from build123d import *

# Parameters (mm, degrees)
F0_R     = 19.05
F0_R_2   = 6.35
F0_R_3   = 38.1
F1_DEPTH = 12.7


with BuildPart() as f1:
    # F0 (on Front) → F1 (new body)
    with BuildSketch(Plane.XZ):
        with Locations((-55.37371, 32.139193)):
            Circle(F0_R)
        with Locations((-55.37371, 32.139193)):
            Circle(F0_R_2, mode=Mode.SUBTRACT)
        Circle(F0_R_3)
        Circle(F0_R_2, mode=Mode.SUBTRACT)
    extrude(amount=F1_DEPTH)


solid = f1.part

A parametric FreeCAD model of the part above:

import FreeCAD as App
import Part
import Sketcher
Q = App.Units.Quantity

doc = App.newDocument("Part")
body = doc.addObject("PartDesign::Body", "Body")
body.AllowCompound = True

sketch1 = body.newObject("Sketcher::SketchObject", "Sketch")
sketch1.AttachmentSupport = (doc.getObject("XZ_Plane"), [""])
sketch1.MapMode = "FlatFace"
sketch1.addGeometry(Part.Circle(App.Vector(-55, 32, 0), App.Vector(0, 0, 1), 19), False)
sketch1.addGeometry(Part.Circle(App.Vector(-55, 32, 0), App.Vector(0, 0, 1), 6), False)
sketch1.addGeometry(Part.Circle(App.Vector(0, 0, 0), App.Vector(0, 0, 1), 38), False)
sketch1.addGeometry(Part.Circle(App.Vector(0, 0, 0), App.Vector(0, 0, 1), 6), False)
sketch1.addConstraint(Sketcher.Constraint("Coincident", 2, 3, -1, 1))
sketch1.addConstraint(Sketcher.Constraint("Coincident", 3, 3, -1, 1))
sketch1.addConstraint(Sketcher.Constraint("Coincident", 1, 3, 0, 3))
sketch1.addConstraint(Sketcher.Constraint("Equal", 1, 3))
sketch1.addConstraint(Sketcher.Constraint("Diameter", 2, Q("3 in")))
sketch1.addConstraint(Sketcher.Constraint("Diameter", 0, Q("1.5 in")))
sketch1.addConstraint(Sketcher.Constraint("Diameter", 1, Q("0.5 in")))
sketch1.addConstraint(Sketcher.Constraint("DistanceX", 0, 3, -1, 1, Q("55.37371 mm")))
sketch1.addConstraint(Sketcher.Constraint("DistanceY", -1, 1, 0, 3, Q("32.139193 mm")))
pad1 = body.newObject("PartDesign::Pad", "Pad")
pad1.Profile = sketch1
pad1.Length = Q("0.5 in")

doc.recompute()
